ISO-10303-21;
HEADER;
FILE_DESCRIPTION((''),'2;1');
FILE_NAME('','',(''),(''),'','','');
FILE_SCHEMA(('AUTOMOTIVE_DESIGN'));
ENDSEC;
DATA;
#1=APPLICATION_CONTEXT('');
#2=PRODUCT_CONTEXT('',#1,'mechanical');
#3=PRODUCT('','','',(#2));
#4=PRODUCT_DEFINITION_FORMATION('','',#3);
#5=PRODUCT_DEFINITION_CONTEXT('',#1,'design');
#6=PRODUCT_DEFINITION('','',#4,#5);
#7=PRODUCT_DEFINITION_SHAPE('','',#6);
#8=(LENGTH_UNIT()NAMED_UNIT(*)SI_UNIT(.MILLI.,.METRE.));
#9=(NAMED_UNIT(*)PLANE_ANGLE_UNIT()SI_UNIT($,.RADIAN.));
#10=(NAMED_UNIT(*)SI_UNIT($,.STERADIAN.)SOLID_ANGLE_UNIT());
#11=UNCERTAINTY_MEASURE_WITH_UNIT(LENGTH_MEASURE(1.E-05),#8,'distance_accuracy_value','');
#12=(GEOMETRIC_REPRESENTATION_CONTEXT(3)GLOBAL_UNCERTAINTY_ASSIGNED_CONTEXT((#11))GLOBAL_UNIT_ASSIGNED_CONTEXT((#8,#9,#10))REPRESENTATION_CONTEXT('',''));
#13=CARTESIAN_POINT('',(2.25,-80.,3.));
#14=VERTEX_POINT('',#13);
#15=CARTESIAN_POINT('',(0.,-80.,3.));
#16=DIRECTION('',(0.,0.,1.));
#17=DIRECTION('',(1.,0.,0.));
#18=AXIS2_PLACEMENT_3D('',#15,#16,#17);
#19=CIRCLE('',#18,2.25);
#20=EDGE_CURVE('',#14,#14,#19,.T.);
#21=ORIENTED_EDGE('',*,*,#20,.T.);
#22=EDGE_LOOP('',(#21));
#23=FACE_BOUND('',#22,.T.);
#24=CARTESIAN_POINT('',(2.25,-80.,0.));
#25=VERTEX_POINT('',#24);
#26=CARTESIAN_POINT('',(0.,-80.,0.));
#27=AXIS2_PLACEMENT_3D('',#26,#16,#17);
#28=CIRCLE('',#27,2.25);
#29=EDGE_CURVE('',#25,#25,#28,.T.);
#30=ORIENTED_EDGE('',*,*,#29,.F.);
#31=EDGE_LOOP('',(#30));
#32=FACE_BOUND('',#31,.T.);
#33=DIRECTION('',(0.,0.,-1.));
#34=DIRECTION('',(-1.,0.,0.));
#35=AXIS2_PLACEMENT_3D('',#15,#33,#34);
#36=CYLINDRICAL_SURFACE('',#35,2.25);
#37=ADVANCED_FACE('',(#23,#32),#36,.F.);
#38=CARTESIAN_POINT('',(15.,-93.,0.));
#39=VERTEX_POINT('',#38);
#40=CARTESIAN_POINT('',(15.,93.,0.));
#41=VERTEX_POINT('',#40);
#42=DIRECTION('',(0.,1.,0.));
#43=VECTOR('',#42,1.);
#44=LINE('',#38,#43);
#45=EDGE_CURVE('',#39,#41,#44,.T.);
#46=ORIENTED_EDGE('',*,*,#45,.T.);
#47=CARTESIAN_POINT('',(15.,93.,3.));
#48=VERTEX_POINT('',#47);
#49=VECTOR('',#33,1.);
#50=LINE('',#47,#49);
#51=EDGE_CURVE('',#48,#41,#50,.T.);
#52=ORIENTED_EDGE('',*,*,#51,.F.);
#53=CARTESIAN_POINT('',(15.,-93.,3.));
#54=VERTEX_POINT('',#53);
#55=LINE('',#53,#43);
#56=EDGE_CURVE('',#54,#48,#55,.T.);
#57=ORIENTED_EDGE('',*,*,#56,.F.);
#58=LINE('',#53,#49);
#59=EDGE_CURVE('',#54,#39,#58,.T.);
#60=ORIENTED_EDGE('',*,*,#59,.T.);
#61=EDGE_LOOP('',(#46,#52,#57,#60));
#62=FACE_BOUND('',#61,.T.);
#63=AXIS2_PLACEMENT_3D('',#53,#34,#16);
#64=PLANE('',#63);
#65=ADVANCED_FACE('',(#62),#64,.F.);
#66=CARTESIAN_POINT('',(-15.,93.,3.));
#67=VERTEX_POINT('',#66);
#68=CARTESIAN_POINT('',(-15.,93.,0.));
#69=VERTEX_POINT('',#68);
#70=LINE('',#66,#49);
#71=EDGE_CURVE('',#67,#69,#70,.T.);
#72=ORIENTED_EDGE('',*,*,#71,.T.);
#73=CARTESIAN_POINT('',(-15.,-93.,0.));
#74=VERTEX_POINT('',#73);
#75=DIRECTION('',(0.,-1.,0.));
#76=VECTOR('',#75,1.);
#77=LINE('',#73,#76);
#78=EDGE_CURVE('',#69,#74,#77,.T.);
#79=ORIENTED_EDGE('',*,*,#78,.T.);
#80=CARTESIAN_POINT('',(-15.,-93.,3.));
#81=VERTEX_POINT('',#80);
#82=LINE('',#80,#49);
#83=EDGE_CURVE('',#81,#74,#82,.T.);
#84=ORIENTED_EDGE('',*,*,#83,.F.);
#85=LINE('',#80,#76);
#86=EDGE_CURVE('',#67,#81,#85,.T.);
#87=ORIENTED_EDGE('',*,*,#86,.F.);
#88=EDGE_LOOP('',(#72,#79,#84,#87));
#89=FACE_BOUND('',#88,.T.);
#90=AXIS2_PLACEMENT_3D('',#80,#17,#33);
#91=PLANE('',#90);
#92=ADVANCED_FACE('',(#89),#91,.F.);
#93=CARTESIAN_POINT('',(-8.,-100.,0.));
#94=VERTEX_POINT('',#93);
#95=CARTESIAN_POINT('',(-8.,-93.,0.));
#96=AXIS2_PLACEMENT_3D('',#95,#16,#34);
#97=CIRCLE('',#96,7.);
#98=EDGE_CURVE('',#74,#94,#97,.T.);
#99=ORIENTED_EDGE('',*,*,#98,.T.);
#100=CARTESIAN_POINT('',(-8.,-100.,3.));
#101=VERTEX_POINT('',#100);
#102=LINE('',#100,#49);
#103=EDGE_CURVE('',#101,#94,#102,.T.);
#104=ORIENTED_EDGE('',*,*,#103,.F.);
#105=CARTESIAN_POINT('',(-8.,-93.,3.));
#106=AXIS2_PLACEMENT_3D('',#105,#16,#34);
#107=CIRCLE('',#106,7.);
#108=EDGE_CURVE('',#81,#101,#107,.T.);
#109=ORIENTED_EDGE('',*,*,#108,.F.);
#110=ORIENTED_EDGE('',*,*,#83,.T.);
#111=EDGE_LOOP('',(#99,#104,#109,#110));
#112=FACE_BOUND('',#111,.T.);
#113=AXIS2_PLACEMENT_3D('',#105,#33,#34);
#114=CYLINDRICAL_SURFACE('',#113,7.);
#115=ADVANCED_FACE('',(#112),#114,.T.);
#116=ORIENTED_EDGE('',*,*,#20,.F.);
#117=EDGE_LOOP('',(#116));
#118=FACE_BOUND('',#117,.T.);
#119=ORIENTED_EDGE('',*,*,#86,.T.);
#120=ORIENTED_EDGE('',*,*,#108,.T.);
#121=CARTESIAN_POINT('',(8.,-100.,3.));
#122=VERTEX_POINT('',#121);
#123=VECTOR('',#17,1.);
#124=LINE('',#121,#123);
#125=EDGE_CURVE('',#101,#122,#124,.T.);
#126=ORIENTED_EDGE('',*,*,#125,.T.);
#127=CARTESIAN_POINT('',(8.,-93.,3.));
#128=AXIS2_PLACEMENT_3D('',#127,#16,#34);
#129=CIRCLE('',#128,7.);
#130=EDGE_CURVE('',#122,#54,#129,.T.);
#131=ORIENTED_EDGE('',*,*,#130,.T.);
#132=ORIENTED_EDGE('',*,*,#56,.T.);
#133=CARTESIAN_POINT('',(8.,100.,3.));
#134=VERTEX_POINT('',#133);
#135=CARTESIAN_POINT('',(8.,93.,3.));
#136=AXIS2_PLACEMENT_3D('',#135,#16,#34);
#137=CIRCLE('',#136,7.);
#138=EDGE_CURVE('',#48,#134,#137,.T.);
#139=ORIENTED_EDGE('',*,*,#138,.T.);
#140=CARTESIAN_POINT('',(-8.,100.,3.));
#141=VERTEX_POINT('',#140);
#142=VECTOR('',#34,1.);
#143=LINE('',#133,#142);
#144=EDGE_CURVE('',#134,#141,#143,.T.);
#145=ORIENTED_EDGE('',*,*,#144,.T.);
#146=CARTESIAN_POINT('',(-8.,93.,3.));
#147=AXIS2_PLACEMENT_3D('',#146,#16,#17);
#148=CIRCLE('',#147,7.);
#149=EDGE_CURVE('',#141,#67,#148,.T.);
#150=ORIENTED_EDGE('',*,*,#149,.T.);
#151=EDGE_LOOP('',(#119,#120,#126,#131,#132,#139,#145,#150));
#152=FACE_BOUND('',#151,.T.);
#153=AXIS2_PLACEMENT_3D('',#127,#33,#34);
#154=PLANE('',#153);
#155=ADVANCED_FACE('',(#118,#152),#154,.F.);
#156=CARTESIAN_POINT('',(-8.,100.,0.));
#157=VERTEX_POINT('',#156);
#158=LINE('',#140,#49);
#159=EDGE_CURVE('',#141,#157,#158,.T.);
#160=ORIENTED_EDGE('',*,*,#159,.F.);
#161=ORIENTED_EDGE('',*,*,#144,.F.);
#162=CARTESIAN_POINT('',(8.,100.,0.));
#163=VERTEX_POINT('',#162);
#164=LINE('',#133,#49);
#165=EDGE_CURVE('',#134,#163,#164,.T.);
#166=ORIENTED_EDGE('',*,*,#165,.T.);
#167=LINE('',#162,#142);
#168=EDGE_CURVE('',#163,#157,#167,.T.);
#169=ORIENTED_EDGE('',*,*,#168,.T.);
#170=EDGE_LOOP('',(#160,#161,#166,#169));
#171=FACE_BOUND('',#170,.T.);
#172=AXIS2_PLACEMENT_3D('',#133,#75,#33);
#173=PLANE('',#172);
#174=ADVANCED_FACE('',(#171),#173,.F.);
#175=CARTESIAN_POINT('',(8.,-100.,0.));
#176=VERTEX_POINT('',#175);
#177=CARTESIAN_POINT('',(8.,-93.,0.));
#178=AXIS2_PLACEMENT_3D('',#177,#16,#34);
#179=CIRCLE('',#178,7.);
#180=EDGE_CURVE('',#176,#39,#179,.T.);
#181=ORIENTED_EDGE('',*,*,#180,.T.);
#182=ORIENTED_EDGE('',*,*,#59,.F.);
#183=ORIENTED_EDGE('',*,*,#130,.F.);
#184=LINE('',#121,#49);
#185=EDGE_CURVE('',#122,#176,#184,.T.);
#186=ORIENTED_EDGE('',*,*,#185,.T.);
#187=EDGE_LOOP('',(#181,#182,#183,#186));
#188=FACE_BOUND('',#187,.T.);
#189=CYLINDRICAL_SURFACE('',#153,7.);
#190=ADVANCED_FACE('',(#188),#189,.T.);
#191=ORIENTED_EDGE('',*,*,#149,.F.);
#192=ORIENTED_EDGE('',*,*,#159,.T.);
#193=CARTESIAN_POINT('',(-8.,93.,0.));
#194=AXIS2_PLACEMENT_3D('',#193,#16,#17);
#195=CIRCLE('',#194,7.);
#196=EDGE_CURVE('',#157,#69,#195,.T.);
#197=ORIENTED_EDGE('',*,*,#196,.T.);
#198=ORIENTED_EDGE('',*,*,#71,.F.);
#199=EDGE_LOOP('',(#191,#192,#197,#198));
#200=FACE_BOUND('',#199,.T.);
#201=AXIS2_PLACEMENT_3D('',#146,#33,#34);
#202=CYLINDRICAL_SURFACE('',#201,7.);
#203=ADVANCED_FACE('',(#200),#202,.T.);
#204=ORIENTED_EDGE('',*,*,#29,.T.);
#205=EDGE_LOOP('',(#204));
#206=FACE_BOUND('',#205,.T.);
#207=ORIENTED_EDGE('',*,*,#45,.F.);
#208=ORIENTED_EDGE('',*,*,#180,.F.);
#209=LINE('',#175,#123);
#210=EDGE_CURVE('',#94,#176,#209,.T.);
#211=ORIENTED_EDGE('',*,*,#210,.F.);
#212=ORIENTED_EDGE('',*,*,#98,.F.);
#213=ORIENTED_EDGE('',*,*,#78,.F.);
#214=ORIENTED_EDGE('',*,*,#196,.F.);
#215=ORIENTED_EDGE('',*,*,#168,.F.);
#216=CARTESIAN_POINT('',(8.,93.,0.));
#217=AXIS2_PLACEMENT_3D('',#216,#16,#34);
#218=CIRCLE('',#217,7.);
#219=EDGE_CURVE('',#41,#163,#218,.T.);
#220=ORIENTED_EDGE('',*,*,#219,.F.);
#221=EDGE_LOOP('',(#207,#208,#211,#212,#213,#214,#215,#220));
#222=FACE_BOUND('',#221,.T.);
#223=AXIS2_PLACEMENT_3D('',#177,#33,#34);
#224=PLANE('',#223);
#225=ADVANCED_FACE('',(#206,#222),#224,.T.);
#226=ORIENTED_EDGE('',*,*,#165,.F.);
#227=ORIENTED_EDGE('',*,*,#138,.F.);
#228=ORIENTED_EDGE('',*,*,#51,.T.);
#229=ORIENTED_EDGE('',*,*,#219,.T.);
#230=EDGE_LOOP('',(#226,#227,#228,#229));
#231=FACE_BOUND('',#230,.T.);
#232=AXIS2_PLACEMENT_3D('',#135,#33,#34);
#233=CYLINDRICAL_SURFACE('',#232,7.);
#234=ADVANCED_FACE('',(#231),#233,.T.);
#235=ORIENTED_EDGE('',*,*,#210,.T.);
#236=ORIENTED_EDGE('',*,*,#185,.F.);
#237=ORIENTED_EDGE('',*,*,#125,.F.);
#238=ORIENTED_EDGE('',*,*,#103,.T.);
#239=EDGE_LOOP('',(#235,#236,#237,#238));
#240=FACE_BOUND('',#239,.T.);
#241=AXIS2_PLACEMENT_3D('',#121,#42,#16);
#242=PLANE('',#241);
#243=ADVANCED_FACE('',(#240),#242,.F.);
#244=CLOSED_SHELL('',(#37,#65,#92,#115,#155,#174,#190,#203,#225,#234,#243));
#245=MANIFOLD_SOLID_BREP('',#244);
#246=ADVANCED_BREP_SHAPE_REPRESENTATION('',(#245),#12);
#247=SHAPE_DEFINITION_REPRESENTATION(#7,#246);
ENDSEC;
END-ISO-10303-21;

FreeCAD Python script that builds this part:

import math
import FreeCAD as App
import Part
import Sketcher
from FreeCAD import Vector
Q = App.Units.Quantity

doc = App.newDocument("Part")
body = doc.addObject("PartDesign::Body", "Body")

sketch1 = doc.addObject("Sketcher::SketchObject", "Sketch")
body.addObject(sketch1)
sketch1.AttachmentSupport = (doc.XY_Plane, [""])
sketch1.MapMode = "FlatFace"
sketch1.addGeometry([
    Part.LineSegment(Vector(-8, -100, 0), Vector(8, -100, 0)),
    Part.ArcOfCircle(Part.Circle(Vector(8, -93, 0), Vector(0, 0, 1), 7), math.radians(-90), math.radians(0)),
    Part.LineSegment(Vector(15, -93, 0), Vector(15, 93, 0)),
    Part.ArcOfCircle(Part.Circle(Vector(8, 93, 0), Vector(0, 0, 1), 7), math.radians(0), math.radians(90)),
    Part.LineSegment(Vector(8, 100, 0), Vector(-8, 100, 0)),
    Part.ArcOfCircle(Part.Circle(Vector(-8, 93, 0), Vector(0, 0, 1), 7), math.radians(90), math.radians(180)),
    Part.LineSegment(Vector(-15, 93, 0), Vector(-15, -93, 0)),
    Part.ArcOfCircle(Part.Circle(Vector(-8, -93, 0), Vector(0, 0, 1), 7), math.radians(-180), math.radians(-90)),
    Part.Circle(Vector(0, -80, 0), Vector(0, 0, 1), 2.2),
], False)
sketch1.addConstraint([
    Sketcher.Constraint("Tangent", 0, 2, 1, 1),
    Sketcher.Constraint("Tangent", 1, 2, 2, 1),
    Sketcher.Constraint("Tangent", 2, 2, 3, 1),
    Sketcher.Constraint("Tangent", 3, 2, 4, 1),
    Sketcher.Constraint("Tangent", 4, 2, 5, 1),
    Sketcher.Constraint("Tangent", 5, 2, 6, 1),
    Sketcher.Constraint("Tangent", 6, 2, 7, 1),
    Sketcher.Constraint("Tangent", 7, 2, 0, 1),
    Sketcher.Constraint("Horizontal", 0),
    Sketcher.Constraint("Vertical", 2),
    Sketcher.Constraint("Horizontal", 4),
    Sketcher.Constraint("Vertical", 6),
    Sketcher.Constraint("Equal", 1, 3),
    Sketcher.Constraint("Equal", 3, 5),
    Sketcher.Constraint("Equal", 5, 7),
    Sketcher.Constraint("Symmetric", 1, 3, 5, 3, -1, 1),
    Sketcher.Constraint("PointOnObject", 8, 3, -2),
    Sketcher.Constraint("Radius", 1, Q("7 mm")),
    Sketcher.Constraint("Diameter", 8, Q("4.5 mm")),
    Sketcher.Constraint("DistanceX", 0, 1, 0, 2, Q("16 mm")),
    Sketcher.Constraint("DistanceY", 2, 1, 2, 2, Q("186 mm")),
    Sketcher.Constraint("DistanceY", 8, 3, -1, 1, Q("80 mm")),
])
pad1 = doc.addObject("PartDesign::Pad", "Pad")
body.addObject(pad1)
pad1.Profile = sketch1
pad1.Length = 3

doc.recompute()
